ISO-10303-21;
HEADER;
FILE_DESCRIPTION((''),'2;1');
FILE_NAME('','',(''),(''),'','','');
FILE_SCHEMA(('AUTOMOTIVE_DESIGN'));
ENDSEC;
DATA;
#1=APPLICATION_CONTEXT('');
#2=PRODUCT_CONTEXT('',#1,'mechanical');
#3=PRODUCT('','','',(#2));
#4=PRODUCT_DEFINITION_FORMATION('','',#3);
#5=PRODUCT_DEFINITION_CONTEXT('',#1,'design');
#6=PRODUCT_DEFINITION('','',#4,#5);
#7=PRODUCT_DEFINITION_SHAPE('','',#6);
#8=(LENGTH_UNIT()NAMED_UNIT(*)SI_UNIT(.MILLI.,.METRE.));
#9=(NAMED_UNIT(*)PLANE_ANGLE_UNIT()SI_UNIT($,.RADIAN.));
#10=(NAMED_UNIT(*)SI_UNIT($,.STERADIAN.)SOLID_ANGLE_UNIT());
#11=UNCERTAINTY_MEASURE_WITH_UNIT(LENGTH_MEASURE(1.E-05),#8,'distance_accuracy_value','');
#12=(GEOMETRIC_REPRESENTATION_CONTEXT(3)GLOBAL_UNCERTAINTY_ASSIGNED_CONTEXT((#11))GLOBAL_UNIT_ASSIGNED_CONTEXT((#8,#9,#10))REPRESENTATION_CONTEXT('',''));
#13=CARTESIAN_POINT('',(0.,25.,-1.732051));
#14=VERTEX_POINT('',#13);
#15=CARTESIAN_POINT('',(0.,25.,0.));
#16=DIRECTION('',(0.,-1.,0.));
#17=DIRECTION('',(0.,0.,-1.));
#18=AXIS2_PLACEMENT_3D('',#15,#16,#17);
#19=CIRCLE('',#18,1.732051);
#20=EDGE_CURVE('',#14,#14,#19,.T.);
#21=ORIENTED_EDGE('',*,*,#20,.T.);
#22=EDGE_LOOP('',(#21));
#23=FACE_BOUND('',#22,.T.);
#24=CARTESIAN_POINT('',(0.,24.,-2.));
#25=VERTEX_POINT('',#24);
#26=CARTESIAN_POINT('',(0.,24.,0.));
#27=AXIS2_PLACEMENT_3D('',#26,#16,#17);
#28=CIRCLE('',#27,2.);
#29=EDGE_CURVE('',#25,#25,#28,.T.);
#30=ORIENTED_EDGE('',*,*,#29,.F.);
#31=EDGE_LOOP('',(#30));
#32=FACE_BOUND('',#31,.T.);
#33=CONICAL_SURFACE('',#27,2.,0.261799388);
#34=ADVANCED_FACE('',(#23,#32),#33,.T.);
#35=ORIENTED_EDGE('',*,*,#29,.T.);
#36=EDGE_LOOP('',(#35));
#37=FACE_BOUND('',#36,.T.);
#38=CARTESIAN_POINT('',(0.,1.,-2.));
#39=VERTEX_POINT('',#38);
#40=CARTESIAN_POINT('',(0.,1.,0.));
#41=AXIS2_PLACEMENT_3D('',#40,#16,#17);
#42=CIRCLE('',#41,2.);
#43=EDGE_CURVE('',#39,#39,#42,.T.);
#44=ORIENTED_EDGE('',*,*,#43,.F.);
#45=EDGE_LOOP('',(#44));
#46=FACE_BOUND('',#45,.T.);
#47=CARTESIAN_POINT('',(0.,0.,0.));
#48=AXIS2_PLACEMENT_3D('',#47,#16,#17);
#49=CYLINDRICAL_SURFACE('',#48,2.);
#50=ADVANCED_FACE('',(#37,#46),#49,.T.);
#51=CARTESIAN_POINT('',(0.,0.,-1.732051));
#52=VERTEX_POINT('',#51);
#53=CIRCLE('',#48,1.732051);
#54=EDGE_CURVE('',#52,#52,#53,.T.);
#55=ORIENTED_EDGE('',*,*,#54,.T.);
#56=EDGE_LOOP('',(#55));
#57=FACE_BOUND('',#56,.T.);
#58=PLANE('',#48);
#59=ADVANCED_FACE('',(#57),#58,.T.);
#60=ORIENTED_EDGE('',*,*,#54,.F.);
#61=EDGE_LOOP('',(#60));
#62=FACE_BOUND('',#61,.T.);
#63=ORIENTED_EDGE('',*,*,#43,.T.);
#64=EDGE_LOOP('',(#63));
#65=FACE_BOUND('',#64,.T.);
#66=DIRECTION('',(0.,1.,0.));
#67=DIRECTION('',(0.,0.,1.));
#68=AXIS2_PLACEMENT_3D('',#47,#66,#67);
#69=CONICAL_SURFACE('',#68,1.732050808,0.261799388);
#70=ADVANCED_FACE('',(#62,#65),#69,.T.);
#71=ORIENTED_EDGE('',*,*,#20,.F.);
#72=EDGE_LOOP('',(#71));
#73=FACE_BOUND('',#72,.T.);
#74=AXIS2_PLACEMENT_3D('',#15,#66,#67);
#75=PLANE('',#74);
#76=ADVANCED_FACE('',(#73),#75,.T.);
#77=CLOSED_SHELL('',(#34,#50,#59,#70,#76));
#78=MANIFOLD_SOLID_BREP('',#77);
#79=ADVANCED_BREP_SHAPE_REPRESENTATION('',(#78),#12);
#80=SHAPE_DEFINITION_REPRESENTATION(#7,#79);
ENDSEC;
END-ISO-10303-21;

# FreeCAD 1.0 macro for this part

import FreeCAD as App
import Part
import Sketcher

V = App.Vector
Q = App.Units.Quantity

doc = App.newDocument("Part")
body = doc.addObject("PartDesign::Body", "Body")

sketch1 = body.newObject("Sketcher::SketchObject", "Sketch")
sketch1.AttachmentSupport = (doc.getObject("XY_Plane"), [""])
sketch1.MapMode = "FlatFace"
sketch1.addGeometry(Part.LineSegment(V(2, 24, 0), V(1.732051, 25, 0)), False)
sketch1.addGeometry(Part.LineSegment(V(1.732051, 25, 0), V(0, 25, 0)), False)
sketch1.addGeometry(Part.LineSegment(V(0, 25, 0), V(0, 0, 0)), False)
sketch1.addGeometry(Part.LineSegment(V(0, 0, 0), V(1.732051, 0, 0)), False)
sketch1.addGeometry(Part.LineSegment(V(1.732051, 0, 0), V(2, 1, 0)), False)
sketch1.addGeometry(Part.LineSegment(V(2, 1, 0), V(2, 24, 0)), False)
sketch1.addConstraint(Sketcher.Constraint("Coincident", 0, 2, 1, 1))
sketch1.addConstraint(Sketcher.Constraint("Coincident", 1, 2, 2, 1))
sketch1.addConstraint(Sketcher.Constraint("Coincident", 2, 2, 3, 1))
sketch1.addConstraint(Sketcher.Constraint("Coincident", 3, 2, 4, 1))
sketch1.addConstraint(Sketcher.Constraint("Coincident", 4, 2, 5, 1))
sketch1.addConstraint(Sketcher.Constraint("Coincident", 5, 2, 0, 1))
sketch1.addConstraint(Sketcher.Constraint("Horizontal", 1))
sketch1.addConstraint(Sketcher.Constraint("Vertical", 2))
sketch1.addConstraint(Sketcher.Constraint("Horizontal", 3))
sketch1.addConstraint(Sketcher.Constraint("Vertical", 5))
sketch1.addConstraint(Sketcher.Constraint("Coincident", 2, 2, -1, 1))
sketch1.addConstraint(Sketcher.Constraint("Vertical", 0, 2, 3, 2))
sketch1.addConstraint(Sketcher.Constraint("Equal", 0, 4))
sketch1.addConstraint(Sketcher.Constraint("DistanceY", 2, 2, 2, 1, Q("25 mm")))
sketch1.addConstraint(Sketcher.Constraint("DistanceY", 5, 1, 5, 2, Q("23 mm")))
sketch1.addConstraint(Sketcher.Constraint("Angle", 0, Q("105 deg")))
sketch1.addConstraint(Sketcher.Constraint("DistanceX", -1, 1, 4, 2, Q("2 mm")))
revolution = body.newObject("PartDesign::Revolution", "Revolution")
revolution.Profile = sketch1
revolution.ReferenceAxis = (sketch1, ["V_Axis"])
revolution.Angle = 360

doc.recompute()
